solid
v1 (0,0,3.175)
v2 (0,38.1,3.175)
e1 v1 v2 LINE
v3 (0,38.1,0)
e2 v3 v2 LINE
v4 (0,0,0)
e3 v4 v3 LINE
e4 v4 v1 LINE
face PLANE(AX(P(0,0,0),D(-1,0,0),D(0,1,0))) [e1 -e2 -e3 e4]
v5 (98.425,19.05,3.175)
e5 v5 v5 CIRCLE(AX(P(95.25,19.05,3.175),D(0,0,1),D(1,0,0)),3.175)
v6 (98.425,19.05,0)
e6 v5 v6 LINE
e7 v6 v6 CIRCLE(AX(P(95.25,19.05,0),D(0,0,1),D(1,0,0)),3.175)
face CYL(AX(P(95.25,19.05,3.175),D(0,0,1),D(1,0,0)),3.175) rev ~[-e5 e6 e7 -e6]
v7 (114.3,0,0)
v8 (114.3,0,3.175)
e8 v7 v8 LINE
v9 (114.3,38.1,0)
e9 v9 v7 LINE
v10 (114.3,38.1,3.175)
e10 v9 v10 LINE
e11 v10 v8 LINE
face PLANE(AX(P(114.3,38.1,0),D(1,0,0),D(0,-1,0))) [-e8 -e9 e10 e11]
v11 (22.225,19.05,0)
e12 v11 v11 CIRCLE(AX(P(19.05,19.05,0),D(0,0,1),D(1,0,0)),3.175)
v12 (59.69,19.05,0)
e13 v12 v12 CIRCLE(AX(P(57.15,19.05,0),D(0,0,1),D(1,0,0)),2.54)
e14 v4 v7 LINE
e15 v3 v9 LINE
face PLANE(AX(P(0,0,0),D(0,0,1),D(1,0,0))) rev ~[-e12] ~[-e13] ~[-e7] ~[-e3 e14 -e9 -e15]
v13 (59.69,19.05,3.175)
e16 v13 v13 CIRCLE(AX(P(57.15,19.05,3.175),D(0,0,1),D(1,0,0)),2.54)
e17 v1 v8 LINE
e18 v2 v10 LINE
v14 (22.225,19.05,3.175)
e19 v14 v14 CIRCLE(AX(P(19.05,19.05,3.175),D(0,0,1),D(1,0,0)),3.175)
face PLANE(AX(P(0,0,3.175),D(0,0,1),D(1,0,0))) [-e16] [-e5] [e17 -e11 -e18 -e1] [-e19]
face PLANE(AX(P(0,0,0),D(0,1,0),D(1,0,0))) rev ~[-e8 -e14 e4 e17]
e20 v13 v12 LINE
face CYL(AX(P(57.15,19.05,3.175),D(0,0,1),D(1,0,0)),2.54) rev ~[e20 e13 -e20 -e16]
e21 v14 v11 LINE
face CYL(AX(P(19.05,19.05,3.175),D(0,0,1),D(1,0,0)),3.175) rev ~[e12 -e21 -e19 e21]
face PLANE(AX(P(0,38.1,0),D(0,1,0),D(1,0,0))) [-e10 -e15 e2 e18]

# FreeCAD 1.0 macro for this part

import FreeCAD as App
import Part
import Sketcher
from FreeCAD import Vector
Q = App.Units.Quantity

doc = App.newDocument("Part")
body = doc.addObject("PartDesign::Body", "Body")

sketch1 = body.newObject("Sketcher::SketchObject", "Sketch")
sketch1.AttachmentSupport = (doc.getObject("XY_Plane"), [""])
sketch1.MapMode = "FlatFace"
sketch1.addGeometry([
    Part.LineSegment(Vector(0, 38, 0), Vector(0, 0, 0)),
    Part.LineSegment(Vector(0, 0, 0), Vector(114, 0, 0)),
    Part.LineSegment(Vector(114, 0, 0), Vector(114, 38, 0)),
    Part.LineSegment(Vector(114, 38, 0), Vector(0, 38, 0)),
], False)
sketch1.addConstraint([
    Sketcher.Constraint("Coincident", 0, 2, 1, 1),
    Sketcher.Constraint("Coincident", 1, 2, 2, 1),
    Sketcher.Constraint("Coincident", 2, 2, 3, 1),
    Sketcher.Constraint("Coincident", 3, 2, 0, 1),
    Sketcher.Constraint("Vertical", 0),
    Sketcher.Constraint("Horizontal", 1),
    Sketcher.Constraint("Vertical", 2),
    Sketcher.Constraint("Horizontal", 3),
    Sketcher.Constraint("Coincident", 0, 2, -1, 1),
    Sketcher.Constraint("DistanceX", 1, 1, 1, 2, Q("4.5 in")),
    Sketcher.Constraint("DistanceY", 0, 2, 0, 1, Q("1.5 in")),
])
pad1 = body.newObject("PartDesign::Pad", "Pad")
pad1.Profile = sketch1
pad1.Length = Q("0.125 in")

sketch2 = body.newObject("Sketcher::SketchObject", "Sketch001")
sketch2.AttachmentSupport = (doc.getObject("XY_Plane"), [""])
sketch2.MapMode = "FlatFace"
sketch2.AttachmentOffset = App.Placement(Vector(0, 0, 0.125 * 25.4), App.Rotation())
sketch2.addGeometry([
    Part.Circle(Vector(57.1, 19.1, 0), Vector(0, 0, 1), 2.5),
    Part.Circle(Vector(19.1, 19.1, 0), Vector(0, 0, 1), 3.2),
    Part.Circle(Vector(95.2, 19.1, 0), Vector(0, 0, 1), 3.2),
], False)
sketch2.addConstraint([
    Sketcher.Constraint("Equal", 1, 2),
    Sketcher.Constraint("Horizontal", 0, 3, 1, 3),
    Sketcher.Constraint("Horizontal", 1, 3, 2, 3),
    Sketcher.Constraint("Diameter", 0, Q("0.2 in")),
    Sketcher.Constraint("Diameter", 1, Q("0.25 in")),
    Sketcher.Constraint("DistanceX", -1, 1, 0, 3, Q("2.25 in")),
    Sketcher.Constraint("DistanceY", -1, 1, 0, 3, Q("0.75 in")),
    Sketcher.Constraint("DistanceX", -1, 1, 1, 3, Q("0.75 in")),
    Sketcher.Constraint("DistanceX", 1, 3, 2, 3, Q("3 in")),
])
pocket1 = body.newObject("PartDesign::Pocket", "Pocket")
pocket1.Profile = sketch2
pocket1.Length = Q("1 in")

doc.recompute()
